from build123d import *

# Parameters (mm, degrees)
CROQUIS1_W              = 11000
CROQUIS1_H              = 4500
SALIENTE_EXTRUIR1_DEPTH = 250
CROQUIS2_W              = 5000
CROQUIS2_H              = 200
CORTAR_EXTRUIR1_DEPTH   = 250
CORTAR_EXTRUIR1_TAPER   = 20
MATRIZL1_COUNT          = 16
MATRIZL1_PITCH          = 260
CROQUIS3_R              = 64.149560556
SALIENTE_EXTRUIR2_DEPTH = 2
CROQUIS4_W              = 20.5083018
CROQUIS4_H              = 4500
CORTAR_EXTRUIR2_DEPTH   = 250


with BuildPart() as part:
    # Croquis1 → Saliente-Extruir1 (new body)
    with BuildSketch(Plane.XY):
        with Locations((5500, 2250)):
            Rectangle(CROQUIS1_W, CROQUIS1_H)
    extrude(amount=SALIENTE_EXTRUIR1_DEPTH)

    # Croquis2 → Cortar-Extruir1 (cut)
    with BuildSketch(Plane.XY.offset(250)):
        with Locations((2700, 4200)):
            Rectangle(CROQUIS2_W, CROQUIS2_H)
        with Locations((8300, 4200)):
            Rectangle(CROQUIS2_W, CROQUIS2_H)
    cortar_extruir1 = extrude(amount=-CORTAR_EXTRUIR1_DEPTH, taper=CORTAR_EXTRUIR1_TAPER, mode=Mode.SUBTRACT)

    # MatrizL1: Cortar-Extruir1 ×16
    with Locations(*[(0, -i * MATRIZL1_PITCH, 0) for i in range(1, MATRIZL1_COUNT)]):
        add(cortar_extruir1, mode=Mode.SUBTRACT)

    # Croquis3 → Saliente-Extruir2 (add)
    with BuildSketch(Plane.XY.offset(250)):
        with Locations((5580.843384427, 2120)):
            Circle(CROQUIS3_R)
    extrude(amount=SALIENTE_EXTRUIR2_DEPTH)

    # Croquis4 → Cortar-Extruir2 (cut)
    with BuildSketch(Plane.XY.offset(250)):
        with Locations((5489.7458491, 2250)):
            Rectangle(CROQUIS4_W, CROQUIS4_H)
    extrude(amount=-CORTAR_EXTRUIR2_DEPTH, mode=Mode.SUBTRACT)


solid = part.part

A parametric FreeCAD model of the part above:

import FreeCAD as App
import Part
import Sketcher

V = App.Vector

doc = App.newDocument("Part")
params = doc.addObject("Spreadsheet::Sheet", "Params")
for row, (alias, value) in enumerate([
    ("sketch1_width", "11000 mm"),
    ("sketch1_height", "4500 mm"),
    ("pad1_length", "250 mm"),
    ("sketch2_width", "5000 mm"),
    ("sketch2_height", "200 mm"),
    ("pocket1_length", "250 mm"),
    ("pocket1_taper", "-20 deg"),
    ("linearpattern_pitch", "260 mm"),
    ("pad2_length", "2 mm"),
    ("sketch4_height", "4500 mm"),
    ("pocket2_length", "250 mm"),
], start=1):
    params.set(f"A{row}", alias)
    params.set(f"B{row}", "=" + value)
    params.setAlias(f"B{row}", alias)

body = doc.addObject("PartDesign::Body", "Body")
body.AllowCompound = True

sketch1 = body.newObject("Sketcher::SketchObject", "Sketch")
sketch1.AttachmentSupport = (doc.getObject("XY_Plane"), [""])
sketch1.MapMode = "FlatFace"
sketch1.addGeometry(Part.LineSegment(V(0, 4500, 0), V(0, 0, 0)), False)
sketch1.addGeometry(Part.LineSegment(V(0, 0, 0), V(11000, 0, 0)), False)
sketch1.addGeometry(Part.LineSegment(V(11000, 0, 0), V(11000, 4500, 0)), False)
sketch1.addGeometry(Part.LineSegment(V(11000, 4500, 0), V(0, 4500, 0)), False)
sketch1.addConstraint(Sketcher.Constraint("Coincident", 0, 2, 1, 1))
sketch1.addConstraint(Sketcher.Constraint("Coincident", 1, 2, 2, 1))
sketch1.addConstraint(Sketcher.Constraint("Coincident", 2, 2, 3, 1))
sketch1.addConstraint(Sketcher.Constraint("Coincident", 3, 2, 0, 1))
sketch1.addConstraint(Sketcher.Constraint("Vertical", 0))
sketch1.addConstraint(Sketcher.Constraint("Horizontal", 1))
sketch1.addConstraint(Sketcher.Constraint("Vertical", 2))
sketch1.addConstraint(Sketcher.Constraint("Horizontal", 3))
sketch1.addConstraint(Sketcher.Constraint("Coincident", 0, 2, -1, 1))
sketch1.addConstraint(Sketcher.Constraint("DistanceX", 1, 1, 1, 2, 11000.0))
sketch1.addConstraint(Sketcher.Constraint("DistanceY", 0, 2, 0, 1, 4500.0))
sketch1.setExpression("Constraints[9]", "Params.sketch1_width")
sketch1.setExpression("Constraints[10]", "Params.sketch1_height")
pad1 = body.newObject("PartDesign::Pad", "Pad")
pad1.Profile = sketch1
pad1.setExpression("Length", "Params.pad1_length")

sketch2 = body.newObject("Sketcher::SketchObject", "Sketch001")
sketch2.AttachmentSupport = (doc.getObject("XY_Plane"), [""])
sketch2.MapMode = "FlatFace"
sketch2.AttachmentOffset = App.Placement(V(0, 0, 250), App.Rotation())
sketch2.addGeometry(Part.LineSegment(V(200, 4300, 0), V(200, 4100, 0)), False)
sketch2.addGeometry(Part.LineSegment(V(200, 4100, 0), V(5200, 4100, 0)), False)
sketch2.addGeometry(Part.LineSegment(V(5200, 4100, 0), V(5200, 4300, 0)), False)
sketch2.addGeometry(Part.LineSegment(V(5200, 4300, 0), V(200, 4300, 0)), False)
sketch2.addGeometry(Part.LineSegment(V(5800, 4300, 0), V(5800, 4100, 0)), False)
sketch2.addGeometry(Part.LineSegment(V(5800, 4100, 0), V(10800, 4100, 0)), False)
sketch2.addGeometry(Part.LineSegment(V(10800, 4100, 0), V(10800, 4300, 0)), False)
sketch2.addGeometry(Part.LineSegment(V(10800, 4300, 0), V(5800, 4300, 0)), False)
sketch2.addConstraint(Sketcher.Constraint("Coincident", 0, 2, 1, 1))
sketch2.addConstraint(Sketcher.Constraint("Coincident", 1, 2, 2, 1))
sketch2.addConstraint(Sketcher.Constraint("Coincident", 2, 2, 3, 1))
sketch2.addConstraint(Sketcher.Constraint("Coincident", 3, 2, 0, 1))
sketch2.addConstraint(Sketcher.Constraint("Coincident", 4, 2, 5, 1))
sketch2.addConstraint(Sketcher.Constraint("Coincident", 5, 2, 6, 1))
sketch2.addConstraint(Sketcher.Constraint("Coincident", 6, 2, 7, 1))
sketch2.addConstraint(Sketcher.Constraint("Coincident", 7, 2, 4, 1))
sketch2.addConstraint(Sketcher.Constraint("Vertical", 0))
sketch2.addConstraint(Sketcher.Constraint("Horizontal", 1))
sketch2.addConstraint(Sketcher.Constraint("Vertical", 2))
sketch2.addConstraint(Sketcher.Constraint("Horizontal", 3))
sketch2.addConstraint(Sketcher.Constraint("Vertical", 4))
sketch2.addConstraint(Sketcher.Constraint("Horizontal", 5))
sketch2.addConstraint(Sketcher.Constraint("Vertical", 6))
sketch2.addConstraint(Sketcher.Constraint("Horizontal", 7))
sketch2.addConstraint(Sketcher.Constraint("Horizontal", 1, 2, 4, 2))
sketch2.addConstraint(Sketcher.Constraint("Horizontal", 3, 2, 6, 2))
sketch2.addConstraint(Sketcher.Constraint("Equal", 3, 5))
sketch2.addConstraint(Sketcher.Constraint("DistanceX", 1, 1, 1, 2, 5000.0))
sketch2.addConstraint(Sketcher.Constraint("DistanceY", 0, 2, 0, 1, 200.0))
sketch2.addConstraint(Sketcher.Constraint("DistanceX", -1, 1, 0, 2, 200.0))
sketch2.addConstraint(Sketcher.Constraint("DistanceY", -1, 1, 0, 2, 4100.0))
sketch2.addConstraint(Sketcher.Constraint("DistanceX", -1, 1, 4, 2, 5800.0))
sketch2.setExpression("Constraints[19]", "Params.sketch2_width")
sketch2.setExpression("Constraints[20]", "Params.sketch2_height")
pocket1 = body.newObject("PartDesign::Pocket", "Pocket")
pocket1.Profile = sketch2
pocket1.setExpression("Length", "Params.pocket1_length")
pocket1.setExpression("TaperAngle", "Params.pocket1_taper")
doc.recompute()

linearpattern = body.newObject("PartDesign::LinearPattern", "LinearPattern")
linearpattern.Originals = [pocket1]
linearpattern.Direction = (doc.getObject("Y_Axis"), [""])
linearpattern.Mode = "offset"
linearpattern.setExpression("Offset", "Params.linearpattern_pitch")
linearpattern.Occurrences = 16
linearpattern.Reversed = True
body.Tip = linearpattern

sketch3 = body.newObject("Sketcher::SketchObject", "Sketch002")
sketch3.AttachmentSupport = (doc.getObject("XY_Plane"), [""])
sketch3.MapMode = "FlatFace"
sketch3.AttachmentOffset = App.Placement(V(0, 0, 250), App.Rotation())
sketch3.addGeometry(Part.Circle(V(5581, 2120, 0), V(0, 0, 1), 64), False)
sketch3.addConstraint(Sketcher.Constraint("DistanceY", -1, 1, 0, 3, 2120.0))
sketch3.addConstraint(Sketcher.Constraint("Diameter", 0, 128.299121))
sketch3.addConstraint(Sketcher.Constraint("DistanceX", -1, 1, 0, 3, 5580.843384))
pad2 = body.newObject("PartDesign::Pad", "Pad001")
pad2.Profile = sketch3
pad2.setExpression("Length", "Params.pad2_length")

sketch4 = body.newObject("Sketcher::SketchObject", "Sketch003")
sketch4.AttachmentSupport = (doc.getObject("XY_Plane"), [""])
sketch4.MapMode = "FlatFace"
sketch4.AttachmentOffset = App.Placement(V(0, 0, 250), App.Rotation())
sketch4.addGeometry(Part.LineSegment(V(5479, 4500, 0), V(5479, 0, 0)), False)
sketch4.addGeometry(Part.LineSegment(V(5479, 0, 0), V(5500, 0, 0)), False)
sketch4.addGeometry(Part.LineSegment(V(5500, 0, 0), V(5500, 4500, 0)), False)
sketch4.addGeometry(Part.LineSegment(V(5500, 4500, 0), V(5479, 4500, 0)), False)
sketch4.addConstraint(Sketcher.Constraint("Coincident", 0, 2, 1, 1))
sketch4.addConstraint(Sketcher.Constraint("Coincident", 1, 2, 2, 1))
sketch4.addConstraint(Sketcher.Constraint("Coincident", 2, 2, 3, 1))
sketch4.addConstraint(Sketcher.Constraint("Coincident", 3, 2, 0, 1))
sketch4.addConstraint(Sketcher.Constraint("Vertical", 0))
sketch4.addConstraint(Sketcher.Constraint("Horizontal", 1))
sketch4.addConstraint(Sketcher.Constraint("Vertical", 2))
sketch4.addConstraint(Sketcher.Constraint("Horizontal", 3))
sketch4.addConstraint(Sketcher.Constraint("PointOnObject", 0, 2, -1))
sketch4.addConstraint(Sketcher.Constraint("DistanceY", 0, 2, 0, 1, 4500.0))
sketch4.addConstraint(Sketcher.Constraint("DistanceX", -1, 1, 1, 2, 5500.0))
sketch4.addConstraint(Sketcher.Constraint("DistanceX", 1, 1, 1, 2, 20.508302))
sketch4.setExpression("Constraints[9]", "Params.sketch4_height")
pocket2 = body.newObject("PartDesign::Pocket", "Pocket001")
pocket2.Profile = sketch4
pocket2.setExpression("Length", "Params.pocket2_length")

doc.recompute()
